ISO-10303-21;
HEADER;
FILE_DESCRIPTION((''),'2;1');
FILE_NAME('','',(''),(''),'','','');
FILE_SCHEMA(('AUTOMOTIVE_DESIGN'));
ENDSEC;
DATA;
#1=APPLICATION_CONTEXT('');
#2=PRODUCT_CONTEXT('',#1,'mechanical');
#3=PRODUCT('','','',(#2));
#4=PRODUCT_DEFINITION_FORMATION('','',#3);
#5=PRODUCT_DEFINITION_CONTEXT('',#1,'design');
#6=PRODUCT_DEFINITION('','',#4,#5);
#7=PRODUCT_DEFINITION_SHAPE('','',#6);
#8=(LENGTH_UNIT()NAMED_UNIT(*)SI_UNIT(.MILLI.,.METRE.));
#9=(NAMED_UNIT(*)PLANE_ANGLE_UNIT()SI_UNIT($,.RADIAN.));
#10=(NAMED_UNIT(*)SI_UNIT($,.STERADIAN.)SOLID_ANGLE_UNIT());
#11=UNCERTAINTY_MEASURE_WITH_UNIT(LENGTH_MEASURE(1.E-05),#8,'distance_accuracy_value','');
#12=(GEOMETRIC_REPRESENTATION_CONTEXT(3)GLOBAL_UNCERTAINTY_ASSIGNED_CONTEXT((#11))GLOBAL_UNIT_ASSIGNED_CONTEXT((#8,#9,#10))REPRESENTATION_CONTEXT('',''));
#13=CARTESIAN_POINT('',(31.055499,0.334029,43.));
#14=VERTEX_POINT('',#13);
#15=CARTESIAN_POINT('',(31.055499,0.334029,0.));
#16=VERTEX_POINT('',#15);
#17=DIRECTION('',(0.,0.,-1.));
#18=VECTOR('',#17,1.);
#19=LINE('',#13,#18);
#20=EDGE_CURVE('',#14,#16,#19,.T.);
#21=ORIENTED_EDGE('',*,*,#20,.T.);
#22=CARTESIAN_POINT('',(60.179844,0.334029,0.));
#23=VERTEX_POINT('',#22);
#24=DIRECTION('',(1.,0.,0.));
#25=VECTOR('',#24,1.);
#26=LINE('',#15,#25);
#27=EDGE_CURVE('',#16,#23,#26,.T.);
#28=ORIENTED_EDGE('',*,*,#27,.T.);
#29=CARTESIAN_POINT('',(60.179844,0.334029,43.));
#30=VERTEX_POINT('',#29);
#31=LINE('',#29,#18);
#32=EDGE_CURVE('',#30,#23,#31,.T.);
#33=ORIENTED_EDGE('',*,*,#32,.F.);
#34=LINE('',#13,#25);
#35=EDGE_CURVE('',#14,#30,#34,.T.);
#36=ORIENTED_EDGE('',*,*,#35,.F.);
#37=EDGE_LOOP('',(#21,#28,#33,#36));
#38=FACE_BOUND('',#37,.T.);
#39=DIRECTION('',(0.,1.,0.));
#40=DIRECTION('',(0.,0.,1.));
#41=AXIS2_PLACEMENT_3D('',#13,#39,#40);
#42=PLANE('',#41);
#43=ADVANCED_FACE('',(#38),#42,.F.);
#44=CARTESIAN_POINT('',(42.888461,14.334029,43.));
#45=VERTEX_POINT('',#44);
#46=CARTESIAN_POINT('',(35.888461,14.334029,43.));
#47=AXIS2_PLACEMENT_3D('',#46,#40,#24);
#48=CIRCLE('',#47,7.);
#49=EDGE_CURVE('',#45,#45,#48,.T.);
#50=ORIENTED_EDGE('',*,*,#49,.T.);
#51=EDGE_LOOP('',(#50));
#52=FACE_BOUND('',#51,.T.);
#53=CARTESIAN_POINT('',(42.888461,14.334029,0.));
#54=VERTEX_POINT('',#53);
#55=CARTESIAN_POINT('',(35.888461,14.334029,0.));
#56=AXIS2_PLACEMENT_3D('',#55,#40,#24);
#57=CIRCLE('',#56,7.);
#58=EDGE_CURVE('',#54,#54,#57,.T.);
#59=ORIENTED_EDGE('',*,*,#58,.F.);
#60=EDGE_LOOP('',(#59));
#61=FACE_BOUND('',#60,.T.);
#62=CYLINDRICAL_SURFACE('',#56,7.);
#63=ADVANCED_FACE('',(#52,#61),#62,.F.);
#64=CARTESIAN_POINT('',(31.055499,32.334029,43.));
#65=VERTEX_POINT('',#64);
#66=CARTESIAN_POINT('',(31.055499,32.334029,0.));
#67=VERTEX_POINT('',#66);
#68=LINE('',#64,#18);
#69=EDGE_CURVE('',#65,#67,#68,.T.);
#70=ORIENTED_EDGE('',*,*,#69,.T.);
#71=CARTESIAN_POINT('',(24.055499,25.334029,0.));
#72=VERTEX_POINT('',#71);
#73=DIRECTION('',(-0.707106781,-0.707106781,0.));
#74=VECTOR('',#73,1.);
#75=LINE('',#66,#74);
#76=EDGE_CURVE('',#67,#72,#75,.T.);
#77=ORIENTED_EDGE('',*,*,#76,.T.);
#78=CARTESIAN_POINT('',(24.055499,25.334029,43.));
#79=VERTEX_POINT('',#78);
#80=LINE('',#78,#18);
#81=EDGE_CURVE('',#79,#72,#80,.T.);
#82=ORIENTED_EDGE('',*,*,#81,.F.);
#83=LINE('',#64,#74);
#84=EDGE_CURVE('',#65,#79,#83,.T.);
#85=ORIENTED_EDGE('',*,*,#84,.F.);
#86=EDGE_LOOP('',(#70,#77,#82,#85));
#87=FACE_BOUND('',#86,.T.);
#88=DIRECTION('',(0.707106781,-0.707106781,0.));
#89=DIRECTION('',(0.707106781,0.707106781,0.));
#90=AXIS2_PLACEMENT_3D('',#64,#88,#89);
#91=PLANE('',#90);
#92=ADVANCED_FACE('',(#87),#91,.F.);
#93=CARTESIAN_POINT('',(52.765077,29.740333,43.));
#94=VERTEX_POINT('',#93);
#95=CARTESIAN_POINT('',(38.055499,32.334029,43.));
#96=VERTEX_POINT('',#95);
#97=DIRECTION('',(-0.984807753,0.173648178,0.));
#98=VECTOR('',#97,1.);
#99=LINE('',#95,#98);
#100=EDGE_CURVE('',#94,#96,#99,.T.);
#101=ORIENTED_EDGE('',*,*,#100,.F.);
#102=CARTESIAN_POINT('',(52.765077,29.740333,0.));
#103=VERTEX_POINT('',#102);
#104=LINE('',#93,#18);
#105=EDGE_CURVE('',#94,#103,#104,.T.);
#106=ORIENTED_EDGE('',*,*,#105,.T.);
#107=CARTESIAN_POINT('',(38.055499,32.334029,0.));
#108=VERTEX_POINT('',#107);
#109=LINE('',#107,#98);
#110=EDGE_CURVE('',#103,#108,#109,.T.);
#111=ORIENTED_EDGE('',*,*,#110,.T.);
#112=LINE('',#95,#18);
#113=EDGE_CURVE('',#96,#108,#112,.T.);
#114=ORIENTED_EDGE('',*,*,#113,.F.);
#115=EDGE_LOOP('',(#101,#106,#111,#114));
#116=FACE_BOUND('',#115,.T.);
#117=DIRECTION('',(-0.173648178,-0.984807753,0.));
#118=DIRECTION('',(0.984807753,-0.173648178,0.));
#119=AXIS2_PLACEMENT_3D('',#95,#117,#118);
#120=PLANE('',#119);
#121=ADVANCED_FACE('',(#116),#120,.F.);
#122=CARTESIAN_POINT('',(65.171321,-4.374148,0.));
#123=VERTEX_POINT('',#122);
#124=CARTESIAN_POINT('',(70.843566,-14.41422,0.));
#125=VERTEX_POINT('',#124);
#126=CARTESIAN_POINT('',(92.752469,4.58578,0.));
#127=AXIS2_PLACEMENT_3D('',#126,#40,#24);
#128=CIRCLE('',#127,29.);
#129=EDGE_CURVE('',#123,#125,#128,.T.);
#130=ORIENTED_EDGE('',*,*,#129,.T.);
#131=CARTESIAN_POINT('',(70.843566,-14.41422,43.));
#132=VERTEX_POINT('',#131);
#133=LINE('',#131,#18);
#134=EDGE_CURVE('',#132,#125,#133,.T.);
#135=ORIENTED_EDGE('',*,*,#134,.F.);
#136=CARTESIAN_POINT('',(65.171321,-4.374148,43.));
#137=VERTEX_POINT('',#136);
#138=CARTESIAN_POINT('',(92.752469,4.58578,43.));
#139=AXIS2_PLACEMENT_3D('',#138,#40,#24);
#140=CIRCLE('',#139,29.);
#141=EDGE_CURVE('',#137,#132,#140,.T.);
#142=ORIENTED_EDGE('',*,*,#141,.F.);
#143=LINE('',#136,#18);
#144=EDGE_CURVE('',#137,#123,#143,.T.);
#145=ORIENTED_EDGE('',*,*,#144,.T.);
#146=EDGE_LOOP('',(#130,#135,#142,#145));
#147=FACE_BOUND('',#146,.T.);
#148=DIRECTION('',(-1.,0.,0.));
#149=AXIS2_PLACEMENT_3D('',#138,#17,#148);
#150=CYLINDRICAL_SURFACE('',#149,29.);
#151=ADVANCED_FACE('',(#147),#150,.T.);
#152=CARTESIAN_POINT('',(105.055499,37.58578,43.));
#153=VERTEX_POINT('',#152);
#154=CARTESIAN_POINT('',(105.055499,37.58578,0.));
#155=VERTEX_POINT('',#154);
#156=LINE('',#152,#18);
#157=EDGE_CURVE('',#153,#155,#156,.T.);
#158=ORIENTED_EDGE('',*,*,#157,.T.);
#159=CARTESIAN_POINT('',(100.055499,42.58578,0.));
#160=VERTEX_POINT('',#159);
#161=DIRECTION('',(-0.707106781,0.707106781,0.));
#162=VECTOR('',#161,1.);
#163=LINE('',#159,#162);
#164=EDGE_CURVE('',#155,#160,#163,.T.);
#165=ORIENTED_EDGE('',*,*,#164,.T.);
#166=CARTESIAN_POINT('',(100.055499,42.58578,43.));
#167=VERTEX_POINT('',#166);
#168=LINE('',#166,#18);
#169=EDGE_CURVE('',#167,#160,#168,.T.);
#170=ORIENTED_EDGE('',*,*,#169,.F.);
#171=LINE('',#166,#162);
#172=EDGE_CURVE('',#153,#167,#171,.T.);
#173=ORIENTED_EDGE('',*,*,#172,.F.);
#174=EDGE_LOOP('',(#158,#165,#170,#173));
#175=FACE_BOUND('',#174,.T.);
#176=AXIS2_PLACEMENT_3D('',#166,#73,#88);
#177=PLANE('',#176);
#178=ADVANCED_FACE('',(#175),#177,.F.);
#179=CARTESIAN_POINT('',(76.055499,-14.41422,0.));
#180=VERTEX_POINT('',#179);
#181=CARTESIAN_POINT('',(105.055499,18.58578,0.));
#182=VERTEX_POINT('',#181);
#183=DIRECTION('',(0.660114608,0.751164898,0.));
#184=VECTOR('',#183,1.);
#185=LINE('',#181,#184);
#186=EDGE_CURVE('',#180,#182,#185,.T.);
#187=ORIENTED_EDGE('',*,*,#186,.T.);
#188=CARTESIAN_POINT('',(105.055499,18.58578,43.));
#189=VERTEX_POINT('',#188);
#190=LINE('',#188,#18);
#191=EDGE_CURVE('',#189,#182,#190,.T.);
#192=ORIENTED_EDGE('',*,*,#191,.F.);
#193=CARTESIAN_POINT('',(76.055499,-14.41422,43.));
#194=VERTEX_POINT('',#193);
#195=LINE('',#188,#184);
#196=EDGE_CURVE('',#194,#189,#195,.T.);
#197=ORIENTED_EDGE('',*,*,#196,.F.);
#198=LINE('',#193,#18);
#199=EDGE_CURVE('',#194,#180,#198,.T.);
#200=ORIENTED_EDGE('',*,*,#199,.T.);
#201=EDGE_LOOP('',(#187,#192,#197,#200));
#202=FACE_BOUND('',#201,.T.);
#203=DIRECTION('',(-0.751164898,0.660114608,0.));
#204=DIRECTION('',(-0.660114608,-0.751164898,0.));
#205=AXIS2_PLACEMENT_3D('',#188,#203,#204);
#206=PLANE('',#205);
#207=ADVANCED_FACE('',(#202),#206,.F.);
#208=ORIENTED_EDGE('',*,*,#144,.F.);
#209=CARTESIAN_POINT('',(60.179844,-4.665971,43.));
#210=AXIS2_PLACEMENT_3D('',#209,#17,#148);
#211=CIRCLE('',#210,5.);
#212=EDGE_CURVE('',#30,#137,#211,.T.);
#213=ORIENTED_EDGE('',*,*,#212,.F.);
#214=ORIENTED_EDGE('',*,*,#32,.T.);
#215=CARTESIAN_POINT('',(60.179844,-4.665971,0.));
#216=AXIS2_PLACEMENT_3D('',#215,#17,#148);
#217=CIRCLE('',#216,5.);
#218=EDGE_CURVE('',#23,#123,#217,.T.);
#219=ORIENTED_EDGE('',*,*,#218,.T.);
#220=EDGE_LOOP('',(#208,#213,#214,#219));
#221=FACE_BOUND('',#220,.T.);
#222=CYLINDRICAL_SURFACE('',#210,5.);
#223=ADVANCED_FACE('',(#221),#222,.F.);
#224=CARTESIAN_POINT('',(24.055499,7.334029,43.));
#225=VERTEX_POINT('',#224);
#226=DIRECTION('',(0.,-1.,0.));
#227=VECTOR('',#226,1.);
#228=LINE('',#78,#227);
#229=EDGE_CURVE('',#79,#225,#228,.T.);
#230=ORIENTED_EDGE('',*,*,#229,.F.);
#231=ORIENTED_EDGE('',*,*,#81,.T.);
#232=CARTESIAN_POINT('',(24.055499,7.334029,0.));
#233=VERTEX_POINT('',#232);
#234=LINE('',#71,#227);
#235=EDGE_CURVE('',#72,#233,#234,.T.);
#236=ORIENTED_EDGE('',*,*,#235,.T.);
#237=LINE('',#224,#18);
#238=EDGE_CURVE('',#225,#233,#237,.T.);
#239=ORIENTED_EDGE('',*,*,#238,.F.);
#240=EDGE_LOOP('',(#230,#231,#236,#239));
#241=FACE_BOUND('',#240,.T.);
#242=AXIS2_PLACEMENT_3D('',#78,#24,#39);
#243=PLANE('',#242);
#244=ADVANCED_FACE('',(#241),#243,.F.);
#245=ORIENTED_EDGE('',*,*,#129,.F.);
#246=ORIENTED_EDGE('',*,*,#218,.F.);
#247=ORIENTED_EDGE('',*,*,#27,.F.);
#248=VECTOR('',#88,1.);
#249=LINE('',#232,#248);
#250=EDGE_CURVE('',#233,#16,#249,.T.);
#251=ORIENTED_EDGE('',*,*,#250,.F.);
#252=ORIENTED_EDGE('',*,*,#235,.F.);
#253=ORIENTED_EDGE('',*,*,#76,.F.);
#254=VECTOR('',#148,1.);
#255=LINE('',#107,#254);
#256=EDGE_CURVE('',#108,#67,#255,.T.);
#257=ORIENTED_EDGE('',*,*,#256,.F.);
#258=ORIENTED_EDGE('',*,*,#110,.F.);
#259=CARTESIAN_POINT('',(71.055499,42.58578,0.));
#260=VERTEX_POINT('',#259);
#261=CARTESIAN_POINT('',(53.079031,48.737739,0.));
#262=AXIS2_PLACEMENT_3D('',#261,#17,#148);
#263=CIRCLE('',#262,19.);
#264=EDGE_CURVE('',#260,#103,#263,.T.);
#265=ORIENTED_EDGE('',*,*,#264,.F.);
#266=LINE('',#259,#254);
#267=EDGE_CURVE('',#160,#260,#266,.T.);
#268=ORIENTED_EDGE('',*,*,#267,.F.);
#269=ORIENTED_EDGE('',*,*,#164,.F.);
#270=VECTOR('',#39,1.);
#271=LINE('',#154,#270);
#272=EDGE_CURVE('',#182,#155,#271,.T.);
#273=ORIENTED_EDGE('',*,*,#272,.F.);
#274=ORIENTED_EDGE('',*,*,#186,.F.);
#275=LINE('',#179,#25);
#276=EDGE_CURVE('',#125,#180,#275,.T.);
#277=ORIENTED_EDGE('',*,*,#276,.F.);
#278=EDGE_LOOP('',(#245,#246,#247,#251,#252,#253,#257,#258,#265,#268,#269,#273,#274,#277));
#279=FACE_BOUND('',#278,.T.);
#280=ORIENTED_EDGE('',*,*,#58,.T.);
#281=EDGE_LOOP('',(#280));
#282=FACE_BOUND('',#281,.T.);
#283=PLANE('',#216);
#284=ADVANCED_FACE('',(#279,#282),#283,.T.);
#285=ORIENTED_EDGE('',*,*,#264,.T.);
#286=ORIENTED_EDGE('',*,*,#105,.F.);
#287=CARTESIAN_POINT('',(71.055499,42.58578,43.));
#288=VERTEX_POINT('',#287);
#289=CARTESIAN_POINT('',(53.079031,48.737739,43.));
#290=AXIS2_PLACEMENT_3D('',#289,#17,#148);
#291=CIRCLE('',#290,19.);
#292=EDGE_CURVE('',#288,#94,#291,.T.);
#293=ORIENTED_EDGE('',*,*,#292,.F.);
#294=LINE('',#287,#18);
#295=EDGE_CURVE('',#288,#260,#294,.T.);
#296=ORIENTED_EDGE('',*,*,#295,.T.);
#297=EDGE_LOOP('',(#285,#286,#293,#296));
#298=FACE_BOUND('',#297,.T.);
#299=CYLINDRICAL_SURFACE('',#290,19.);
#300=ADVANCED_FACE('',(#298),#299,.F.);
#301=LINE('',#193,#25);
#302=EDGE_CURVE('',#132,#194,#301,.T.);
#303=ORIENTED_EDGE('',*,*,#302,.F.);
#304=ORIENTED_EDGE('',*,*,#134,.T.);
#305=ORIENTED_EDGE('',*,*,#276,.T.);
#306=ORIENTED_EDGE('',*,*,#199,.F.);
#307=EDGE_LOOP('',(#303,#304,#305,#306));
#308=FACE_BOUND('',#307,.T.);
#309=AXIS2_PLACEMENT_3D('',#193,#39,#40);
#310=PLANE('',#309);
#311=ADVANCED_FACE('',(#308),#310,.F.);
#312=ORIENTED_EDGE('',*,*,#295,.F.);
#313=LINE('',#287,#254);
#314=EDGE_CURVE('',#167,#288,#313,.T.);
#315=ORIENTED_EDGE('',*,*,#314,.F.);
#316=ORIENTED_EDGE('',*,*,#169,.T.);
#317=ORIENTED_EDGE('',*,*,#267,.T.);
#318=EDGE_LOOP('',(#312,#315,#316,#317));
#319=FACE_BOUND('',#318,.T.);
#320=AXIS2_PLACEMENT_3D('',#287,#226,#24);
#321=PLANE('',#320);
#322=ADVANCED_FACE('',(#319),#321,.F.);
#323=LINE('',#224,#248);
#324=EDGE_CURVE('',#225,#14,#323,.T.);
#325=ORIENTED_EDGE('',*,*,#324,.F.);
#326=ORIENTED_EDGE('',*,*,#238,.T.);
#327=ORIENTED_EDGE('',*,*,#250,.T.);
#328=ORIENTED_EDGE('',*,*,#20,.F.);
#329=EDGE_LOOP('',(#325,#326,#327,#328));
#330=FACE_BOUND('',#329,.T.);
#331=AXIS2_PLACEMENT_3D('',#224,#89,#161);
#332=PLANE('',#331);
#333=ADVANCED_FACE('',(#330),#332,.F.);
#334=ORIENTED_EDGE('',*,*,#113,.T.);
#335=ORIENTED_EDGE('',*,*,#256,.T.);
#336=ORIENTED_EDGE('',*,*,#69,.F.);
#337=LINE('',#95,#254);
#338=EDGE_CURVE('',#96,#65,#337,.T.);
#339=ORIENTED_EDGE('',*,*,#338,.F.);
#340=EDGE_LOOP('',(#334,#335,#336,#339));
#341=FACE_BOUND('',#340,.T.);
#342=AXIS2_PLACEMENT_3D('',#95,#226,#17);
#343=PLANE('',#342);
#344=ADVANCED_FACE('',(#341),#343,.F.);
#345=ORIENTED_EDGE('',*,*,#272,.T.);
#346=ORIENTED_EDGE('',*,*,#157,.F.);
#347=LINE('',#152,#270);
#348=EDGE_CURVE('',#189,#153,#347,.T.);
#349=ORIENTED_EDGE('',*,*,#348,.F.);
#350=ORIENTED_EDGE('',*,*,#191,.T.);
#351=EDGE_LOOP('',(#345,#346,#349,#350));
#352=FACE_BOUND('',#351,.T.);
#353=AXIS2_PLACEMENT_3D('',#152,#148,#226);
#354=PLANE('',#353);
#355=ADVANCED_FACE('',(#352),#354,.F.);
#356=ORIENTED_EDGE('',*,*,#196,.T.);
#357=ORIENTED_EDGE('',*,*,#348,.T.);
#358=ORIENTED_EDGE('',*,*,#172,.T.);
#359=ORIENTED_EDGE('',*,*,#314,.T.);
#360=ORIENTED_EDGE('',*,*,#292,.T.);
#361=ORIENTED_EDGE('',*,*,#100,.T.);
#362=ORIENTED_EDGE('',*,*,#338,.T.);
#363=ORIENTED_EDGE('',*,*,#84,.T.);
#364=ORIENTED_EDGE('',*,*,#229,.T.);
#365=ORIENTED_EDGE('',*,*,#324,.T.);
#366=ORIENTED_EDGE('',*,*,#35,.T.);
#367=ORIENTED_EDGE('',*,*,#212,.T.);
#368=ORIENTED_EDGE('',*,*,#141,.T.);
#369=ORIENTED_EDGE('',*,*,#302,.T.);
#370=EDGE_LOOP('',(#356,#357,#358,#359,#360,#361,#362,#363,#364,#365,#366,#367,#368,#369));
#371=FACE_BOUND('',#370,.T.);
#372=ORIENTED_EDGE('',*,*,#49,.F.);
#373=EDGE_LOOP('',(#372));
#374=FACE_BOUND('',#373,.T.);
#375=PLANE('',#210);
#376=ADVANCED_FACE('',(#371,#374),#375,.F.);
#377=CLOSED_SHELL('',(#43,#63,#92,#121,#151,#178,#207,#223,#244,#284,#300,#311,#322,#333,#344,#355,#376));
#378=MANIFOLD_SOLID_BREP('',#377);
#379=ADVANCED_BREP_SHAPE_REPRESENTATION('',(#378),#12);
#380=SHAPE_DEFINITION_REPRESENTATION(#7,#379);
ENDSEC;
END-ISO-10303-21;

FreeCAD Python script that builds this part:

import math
import FreeCAD as App
import Part
import Sketcher
Q = App.Units.Quantity

doc = App.newDocument("Part")
body = doc.addObject("PartDesign::Body", "Body")

sketch1 = doc.addObject("Sketcher::SketchObject", "Sketch")
body.addObject(sketch1)
sketch1.AttachmentSupport = (doc.XY_Plane, [""])
sketch1.MapMode = "FlatFace"
sketch1.addGeometry(Part.LineSegment(App.Vector(100.1, 42.6, 0), App.Vector(71.1, 42.6, 0)), False)
sketch1.addGeometry(Part.ArcOfCircle(Part.Circle(App.Vector(53.1, 48.7, 0), App.Vector(0, 0, 1), 19), math.radians(-91), math.radians(-19)), False)
sketch1.addGeometry(Part.LineSegment(App.Vector(52.8, 29.7, 0), App.Vector(38.1, 32.3, 0)), False)
sketch1.addGeometry(Part.LineSegment(App.Vector(38.1, 32.3, 0), App.Vector(31.1, 32.3, 0)), False)
sketch1.addGeometry(Part.LineSegment(App.Vector(31.1, 32.3, 0), App.Vector(24.1, 25.3, 0)), False)
sketch1.addGeometry(Part.LineSegment(App.Vector(24.1, 25.3, 0), App.Vector(24.1, 7.3, 0)), False)
sketch1.addGeometry(Part.LineSegment(App.Vector(24.1, 7.3, 0), App.Vector(31.1, 0.3, 0)), False)
sketch1.addGeometry(Part.LineSegment(App.Vector(31.1, 0.3, 0), App.Vector(60.2, 0.3, 0)), False)
sketch1.addGeometry(Part.ArcOfCircle(Part.Circle(App.Vector(60.2, -4.7, 0), App.Vector(0, 0, 1), 5), math.radians(3), math.radians(90)), False)
sketch1.addGeometry(Part.ArcOfCircle(Part.Circle(App.Vector(92.8, 4.6, 0), App.Vector(0, 0, 1), 29), math.radians(-162), math.radians(-139)), False)
sketch1.addGeometry(Part.LineSegment(App.Vector(70.8, -14.4, 0), App.Vector(76.1, -14.4, 0)), False)
sketch1.addGeometry(Part.LineSegment(App.Vector(76.1, -14.4, 0), App.Vector(105.1, 18.6, 0)), False)
sketch1.addGeometry(Part.LineSegment(App.Vector(105.1, 18.6, 0), App.Vector(105.1, 37.6, 0)), False)
sketch1.addGeometry(Part.LineSegment(App.Vector(105.1, 37.6, 0), App.Vector(100.1, 42.6, 0)), False)
sketch1.addConstraint(Sketcher.Constraint("Coincident", 0, 2, 1, 2))
sketch1.addConstraint(Sketcher.Constraint("Coincident", 1, 1, 2, 1))
sketch1.addConstraint(Sketcher.Constraint("Coincident", 2, 2, 3, 1))
sketch1.addConstraint(Sketcher.Constraint("Coincident", 3, 2, 4, 1))
sketch1.addConstraint(Sketcher.Constraint("Coincident", 4, 2, 5, 1))
sketch1.addConstraint(Sketcher.Constraint("Coincident", 5, 2, 6, 1))
sketch1.addConstraint(Sketcher.Constraint("Coincident", 6, 2, 7, 1))
sketch1.addConstraint(Sketcher.Constraint("Tangent", 7, 2, 8, 2))
sketch1.addConstraint(Sketcher.Constraint("Coincident", 8, 1, 9, 1))
sketch1.addConstraint(Sketcher.Constraint("Coincident", 9, 2, 10, 1))
sketch1.addConstraint(Sketcher.Constraint("Coincident", 10, 2, 11, 1))
sketch1.addConstraint(Sketcher.Constraint("Coincident", 11, 2, 12, 1))
sketch1.addConstraint(Sketcher.Constraint("Coincident", 12, 2, 13, 1))
sketch1.addConstraint(Sketcher.Constraint("Coincident", 13, 2, 0, 1))
sketch1.addConstraint(Sketcher.Constraint("Horizontal", 0))
sketch1.addConstraint(Sketcher.Constraint("Horizontal", 3))
sketch1.addConstraint(Sketcher.Constraint("Vertical", 5))
sketch1.addConstraint(Sketcher.Constraint("Horizontal", 7))
sketch1.addConstraint(Sketcher.Constraint("Horizontal", 10))
sketch1.addConstraint(Sketcher.Constraint("Vertical", 12))
sketch1.addConstraint(Sketcher.Constraint("Perpendicular", 4, 6))
sketch1.addConstraint(Sketcher.Constraint("Parallel", 6, 13))
sketch1.addConstraint(Sketcher.Constraint("Vertical", 3, 2, 6, 2))
sketch1.addConstraint(Sketcher.Constraint("Equal", 4, 6))
sketch1.addConstraint(Sketcher.Constraint("Radius", 1, Q("19 mm")))
sketch1.addConstraint(Sketcher.Constraint("Radius", 8, Q("5 mm")))
sketch1.addConstraint(Sketcher.Constraint("Radius", 9, Q("29 mm")))
sketch1.addConstraint(Sketcher.Constraint("DistanceX", 0, 2, 0, 1, Q("29 mm")))
sketch1.addConstraint(Sketcher.Constraint("DistanceX", 3, 2, 3, 1, Q("7 mm")))
sketch1.addConstraint(Sketcher.Constraint("DistanceY", 5, 2, 5, 1, Q("18 mm")))
sketch1.addConstraint(Sketcher.Constraint("DistanceY", 12, 1, 12, 2, Q("19 mm")))
sketch1.addConstraint(Sketcher.Constraint("Angle", 2, Q("170 deg")))
sketch1.addConstraint(Sketcher.Constraint("DistanceY", 9, 3, 0, 2, Q("38 mm")))
sketch1.addConstraint(Sketcher.Constraint("DistanceX", 2, 2, 0, 2, Q("33 mm")))
sketch1.addConstraint(Sketcher.Constraint("DistanceY", 8, 3, 2, 2, Q("37 mm")))
sketch1.addConstraint(Sketcher.Constraint("DistanceY", 9, 2, 9, 3, Q("19 mm")))
sketch1.addConstraint(Sketcher.Constraint("DistanceY", 9, 3, 11, 2, Q("14 mm")))
sketch1.addConstraint(Sketcher.Constraint("DistanceX", 10, 2, 11, 2, Q("29 mm")))
sketch1.addConstraint(Sketcher.Constraint("DistanceX", -1, 1, 0, 2, Q("71.055499 mm")))
sketch1.addConstraint(Sketcher.Constraint("DistanceX", 7, 1, 7, 2, Q("29.124346 mm")))
sketch1.addConstraint(Sketcher.Constraint("DistanceX", 10, 1, 10, 2, Q("5.211933 mm")))
sketch1.addConstraint(Sketcher.Constraint("DistanceX", -1, 1, 1, 3, Q("53.079031 mm")))
sketch1.addConstraint(Sketcher.Constraint("DistanceY", -1, 1, 1, 3, Q("48.737739 mm")))
sketch1.addConstraint(Sketcher.Constraint("DistanceY", 8, 3, -1, 1, Q("4.665971 mm")))
pad1 = doc.addObject("PartDesign::Pad", "Pad")
body.addObject(pad1)
pad1.Profile = sketch1
pad1.Length = 43

sketch2 = doc.addObject("Sketcher::SketchObject", "Sketch001")
body.addObject(sketch2)
sketch2.AttachmentSupport = (doc.XY_Plane, [""])
sketch2.MapMode = "FlatFace"
sketch2.AttachmentOffset = App.Placement(App.Vector(0, 0, 43), App.Rotation())
sketch2.addGeometry(Part.Circle(App.Vector(36, 14, 0), App.Vector(0, 0, 1), 7), False)
sketch2.addConstraint(Sketcher.Constraint("Diameter", 0, Q("14 mm")))
sketch2.addConstraint(Sketcher.Constraint("DistanceX", -1, 1, 0, 3, Q("35.888461 mm")))
sketch2.addConstraint(Sketcher.Constraint("DistanceY", -1, 1, 0, 3, Q("14.334029 mm")))
pocket1 = doc.addObject("PartDesign::Pocket", "Pocket")
body.addObject(pocket1)
pocket1.Profile = sketch2
pocket1.Length = 43

doc.recompute()
